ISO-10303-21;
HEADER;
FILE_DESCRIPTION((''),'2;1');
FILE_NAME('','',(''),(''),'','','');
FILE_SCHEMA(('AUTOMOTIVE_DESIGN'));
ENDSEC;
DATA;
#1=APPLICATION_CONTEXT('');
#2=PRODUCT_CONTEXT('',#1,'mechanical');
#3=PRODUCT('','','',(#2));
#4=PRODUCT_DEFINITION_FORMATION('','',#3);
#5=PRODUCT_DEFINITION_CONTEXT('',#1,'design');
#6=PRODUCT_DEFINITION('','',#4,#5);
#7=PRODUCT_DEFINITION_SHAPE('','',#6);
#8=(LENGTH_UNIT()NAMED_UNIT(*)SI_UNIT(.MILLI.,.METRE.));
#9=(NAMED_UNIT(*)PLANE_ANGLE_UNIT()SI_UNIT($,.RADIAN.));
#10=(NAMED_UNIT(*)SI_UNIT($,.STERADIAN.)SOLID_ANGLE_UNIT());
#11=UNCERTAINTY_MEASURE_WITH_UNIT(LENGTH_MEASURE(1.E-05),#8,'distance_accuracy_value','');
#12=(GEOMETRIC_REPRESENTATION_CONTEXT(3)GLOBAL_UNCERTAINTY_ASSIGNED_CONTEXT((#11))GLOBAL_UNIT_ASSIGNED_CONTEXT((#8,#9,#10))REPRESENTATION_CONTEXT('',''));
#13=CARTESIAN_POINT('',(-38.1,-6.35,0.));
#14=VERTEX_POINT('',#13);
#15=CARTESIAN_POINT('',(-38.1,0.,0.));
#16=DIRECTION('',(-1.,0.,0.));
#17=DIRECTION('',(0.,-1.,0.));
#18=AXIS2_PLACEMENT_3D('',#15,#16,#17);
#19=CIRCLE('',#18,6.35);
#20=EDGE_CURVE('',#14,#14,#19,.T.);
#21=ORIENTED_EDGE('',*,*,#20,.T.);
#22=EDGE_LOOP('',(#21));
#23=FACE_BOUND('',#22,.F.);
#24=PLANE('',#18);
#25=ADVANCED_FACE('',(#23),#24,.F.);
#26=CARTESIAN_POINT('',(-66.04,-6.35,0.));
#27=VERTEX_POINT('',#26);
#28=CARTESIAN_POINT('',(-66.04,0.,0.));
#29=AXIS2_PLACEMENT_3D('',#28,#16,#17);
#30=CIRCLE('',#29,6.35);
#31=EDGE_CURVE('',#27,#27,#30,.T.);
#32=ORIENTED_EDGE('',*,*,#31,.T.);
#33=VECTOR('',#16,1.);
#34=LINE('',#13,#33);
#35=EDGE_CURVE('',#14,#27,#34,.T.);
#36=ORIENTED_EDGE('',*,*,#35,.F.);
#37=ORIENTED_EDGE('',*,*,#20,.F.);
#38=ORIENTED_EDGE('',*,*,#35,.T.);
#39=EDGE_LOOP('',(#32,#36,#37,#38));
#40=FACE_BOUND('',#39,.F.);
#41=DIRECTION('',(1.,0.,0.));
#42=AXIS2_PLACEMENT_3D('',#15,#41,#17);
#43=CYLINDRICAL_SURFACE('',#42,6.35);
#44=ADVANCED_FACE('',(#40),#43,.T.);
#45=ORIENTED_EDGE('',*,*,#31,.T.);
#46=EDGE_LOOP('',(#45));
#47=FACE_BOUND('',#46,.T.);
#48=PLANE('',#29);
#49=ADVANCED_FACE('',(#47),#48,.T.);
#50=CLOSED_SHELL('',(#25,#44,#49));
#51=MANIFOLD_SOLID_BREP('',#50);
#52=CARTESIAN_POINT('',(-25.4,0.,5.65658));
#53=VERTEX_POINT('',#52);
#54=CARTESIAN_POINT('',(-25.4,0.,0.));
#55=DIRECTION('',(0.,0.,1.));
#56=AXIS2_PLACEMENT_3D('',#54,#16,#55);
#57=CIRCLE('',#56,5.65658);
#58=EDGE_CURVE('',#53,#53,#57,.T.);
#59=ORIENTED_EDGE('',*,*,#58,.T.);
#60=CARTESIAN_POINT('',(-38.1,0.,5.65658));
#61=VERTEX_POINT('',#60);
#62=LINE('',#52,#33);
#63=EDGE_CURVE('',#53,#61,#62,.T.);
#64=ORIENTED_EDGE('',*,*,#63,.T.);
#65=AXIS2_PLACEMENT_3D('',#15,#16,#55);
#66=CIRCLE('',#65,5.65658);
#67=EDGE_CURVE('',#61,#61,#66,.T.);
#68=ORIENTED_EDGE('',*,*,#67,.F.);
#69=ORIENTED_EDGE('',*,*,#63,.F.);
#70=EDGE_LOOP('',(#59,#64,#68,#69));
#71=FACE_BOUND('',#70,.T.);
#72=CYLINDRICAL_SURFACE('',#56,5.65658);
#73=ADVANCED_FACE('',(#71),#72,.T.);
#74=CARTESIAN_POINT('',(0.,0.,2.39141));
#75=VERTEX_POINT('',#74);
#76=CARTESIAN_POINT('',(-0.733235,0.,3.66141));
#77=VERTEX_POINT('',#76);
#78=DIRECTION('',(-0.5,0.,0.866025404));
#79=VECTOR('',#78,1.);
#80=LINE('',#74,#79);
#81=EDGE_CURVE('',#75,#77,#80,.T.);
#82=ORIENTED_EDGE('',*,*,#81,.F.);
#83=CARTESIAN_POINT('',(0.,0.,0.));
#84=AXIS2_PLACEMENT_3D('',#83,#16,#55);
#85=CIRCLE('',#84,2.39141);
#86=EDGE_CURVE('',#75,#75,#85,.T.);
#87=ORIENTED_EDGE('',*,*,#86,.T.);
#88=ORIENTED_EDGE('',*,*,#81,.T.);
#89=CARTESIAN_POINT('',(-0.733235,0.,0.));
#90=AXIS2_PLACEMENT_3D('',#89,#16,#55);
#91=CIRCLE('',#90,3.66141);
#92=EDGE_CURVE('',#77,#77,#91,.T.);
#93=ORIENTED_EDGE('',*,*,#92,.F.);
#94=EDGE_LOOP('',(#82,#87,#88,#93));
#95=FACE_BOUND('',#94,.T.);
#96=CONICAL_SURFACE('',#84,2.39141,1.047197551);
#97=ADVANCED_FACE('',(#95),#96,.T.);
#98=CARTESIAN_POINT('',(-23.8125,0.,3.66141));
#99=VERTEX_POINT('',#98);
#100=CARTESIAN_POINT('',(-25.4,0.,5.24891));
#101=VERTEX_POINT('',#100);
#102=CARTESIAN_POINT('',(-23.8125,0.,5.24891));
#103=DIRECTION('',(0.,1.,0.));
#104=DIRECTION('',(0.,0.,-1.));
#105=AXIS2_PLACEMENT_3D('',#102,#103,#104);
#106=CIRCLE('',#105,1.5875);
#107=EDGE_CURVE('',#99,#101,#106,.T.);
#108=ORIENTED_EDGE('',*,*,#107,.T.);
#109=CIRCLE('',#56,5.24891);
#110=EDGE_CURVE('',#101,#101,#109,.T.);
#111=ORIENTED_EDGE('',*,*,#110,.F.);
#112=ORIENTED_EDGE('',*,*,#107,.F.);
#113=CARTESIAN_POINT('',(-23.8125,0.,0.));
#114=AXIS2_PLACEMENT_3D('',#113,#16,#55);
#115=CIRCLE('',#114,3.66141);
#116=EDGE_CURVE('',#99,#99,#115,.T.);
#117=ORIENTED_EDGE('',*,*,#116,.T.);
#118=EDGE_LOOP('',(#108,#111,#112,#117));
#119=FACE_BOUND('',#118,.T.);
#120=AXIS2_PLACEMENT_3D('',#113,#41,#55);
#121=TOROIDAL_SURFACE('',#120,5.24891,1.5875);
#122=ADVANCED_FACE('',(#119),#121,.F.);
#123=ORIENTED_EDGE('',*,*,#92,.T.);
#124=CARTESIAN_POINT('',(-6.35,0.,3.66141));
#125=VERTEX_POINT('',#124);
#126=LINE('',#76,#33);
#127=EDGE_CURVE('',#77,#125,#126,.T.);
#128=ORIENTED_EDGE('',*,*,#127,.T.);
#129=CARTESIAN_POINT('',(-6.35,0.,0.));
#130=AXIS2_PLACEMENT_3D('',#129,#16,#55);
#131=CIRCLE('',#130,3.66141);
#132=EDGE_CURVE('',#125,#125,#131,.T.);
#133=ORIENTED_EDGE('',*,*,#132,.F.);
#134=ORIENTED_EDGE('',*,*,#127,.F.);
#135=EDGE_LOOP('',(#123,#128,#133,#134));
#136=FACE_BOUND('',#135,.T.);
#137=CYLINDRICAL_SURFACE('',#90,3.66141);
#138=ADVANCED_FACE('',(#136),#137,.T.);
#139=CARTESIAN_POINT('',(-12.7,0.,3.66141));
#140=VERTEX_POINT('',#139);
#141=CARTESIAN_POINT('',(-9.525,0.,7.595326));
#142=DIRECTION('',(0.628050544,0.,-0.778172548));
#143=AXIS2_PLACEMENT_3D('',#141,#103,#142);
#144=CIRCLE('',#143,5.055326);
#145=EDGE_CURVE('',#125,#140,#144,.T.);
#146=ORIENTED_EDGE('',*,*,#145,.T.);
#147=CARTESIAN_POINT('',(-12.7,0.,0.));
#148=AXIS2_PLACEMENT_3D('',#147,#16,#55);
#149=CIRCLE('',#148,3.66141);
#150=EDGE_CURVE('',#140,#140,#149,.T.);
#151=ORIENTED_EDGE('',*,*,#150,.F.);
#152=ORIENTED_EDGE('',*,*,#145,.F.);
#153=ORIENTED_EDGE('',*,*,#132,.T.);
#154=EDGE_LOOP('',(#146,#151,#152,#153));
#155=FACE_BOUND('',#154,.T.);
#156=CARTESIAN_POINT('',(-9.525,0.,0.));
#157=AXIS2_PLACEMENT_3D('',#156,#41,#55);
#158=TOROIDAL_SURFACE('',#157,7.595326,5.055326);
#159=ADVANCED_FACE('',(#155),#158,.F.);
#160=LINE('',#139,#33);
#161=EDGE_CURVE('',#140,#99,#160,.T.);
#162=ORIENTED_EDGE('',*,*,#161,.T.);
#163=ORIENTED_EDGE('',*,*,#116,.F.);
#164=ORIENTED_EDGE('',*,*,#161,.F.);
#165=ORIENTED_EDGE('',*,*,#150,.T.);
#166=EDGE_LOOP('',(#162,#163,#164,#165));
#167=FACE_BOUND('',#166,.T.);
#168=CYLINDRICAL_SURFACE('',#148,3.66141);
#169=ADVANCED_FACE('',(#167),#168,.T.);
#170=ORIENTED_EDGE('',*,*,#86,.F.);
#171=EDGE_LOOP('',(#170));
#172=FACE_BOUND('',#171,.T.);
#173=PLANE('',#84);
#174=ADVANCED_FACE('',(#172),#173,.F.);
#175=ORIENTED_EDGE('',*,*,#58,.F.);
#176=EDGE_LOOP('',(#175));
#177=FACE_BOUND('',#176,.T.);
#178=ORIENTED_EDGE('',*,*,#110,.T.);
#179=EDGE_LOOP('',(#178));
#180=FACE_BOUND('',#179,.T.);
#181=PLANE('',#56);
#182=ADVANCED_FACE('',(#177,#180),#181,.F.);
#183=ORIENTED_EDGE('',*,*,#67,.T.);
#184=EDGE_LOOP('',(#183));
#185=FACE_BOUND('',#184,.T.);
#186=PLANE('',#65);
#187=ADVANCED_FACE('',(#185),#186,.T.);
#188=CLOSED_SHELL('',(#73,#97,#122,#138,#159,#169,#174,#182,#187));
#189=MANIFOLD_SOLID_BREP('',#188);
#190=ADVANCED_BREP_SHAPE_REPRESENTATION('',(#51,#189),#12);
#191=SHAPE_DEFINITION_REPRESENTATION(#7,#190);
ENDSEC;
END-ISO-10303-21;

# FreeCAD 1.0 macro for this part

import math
import FreeCAD as App
import Part
import Sketcher
from FreeCAD import Vector
Q = App.Units.Quantity

doc = App.newDocument("Part")
body = doc.addObject("PartDesign::Body", "Body")

sketch1 = doc.addObject("Sketcher::SketchObject", "Sketch")
body.addObject(sketch1)
sketch1.AttachmentSupport = (doc.XZ_Plane, [""])
sketch1.MapMode = "FlatFace"
sketch1.addGeometry([
    Part.LineSegment(Vector(0, 2.39, 0), Vector(-0.73, 3.66, 0)),
    Part.LineSegment(Vector(-0.73, 3.66, 0), Vector(-6.35, 3.66, 0)),
    Part.ArcOfCircle(Part.Circle(Vector(-9.53, 7.6, 0), Vector(0, 0, 1), 5.06), math.radians(-129), math.radians(-51)),
    Part.LineSegment(Vector(-12.7, 3.66, 0), Vector(-23.81, 3.66, 0)),
    Part.ArcOfCircle(Part.Circle(Vector(-23.81, 5.25, 0), Vector(0, 0, 1), 1.59), math.radians(180), math.radians(270)),
    Part.LineSegment(Vector(-25.4, 5.25, 0), Vector(-25.4, 5.66, 0)),
    Part.LineSegment(Vector(-25.4, 5.66, 0), Vector(-38.1, 5.66, 0)),
    Part.LineSegment(Vector(-38.1, 5.66, 0), Vector(-38.1, 0, 0)),
    Part.LineSegment(Vector(-38.1, 0, 0), Vector(0, 0, 0)),
    Part.LineSegment(Vector(0, 0, 0), Vector(0, 2.39, 0)),
], False)
sketch1.addConstraint([
    Sketcher.Constraint("Coincident", 0, 2, 1, 1),
    Sketcher.Constraint("Coincident", 1, 2, 2, 2),
    Sketcher.Constraint("Coincident", 2, 1, 3, 1),
    Sketcher.Constraint("Tangent", 3, 2, 4, 2),
    Sketcher.Constraint("Tangent", 4, 1, 5, 1),
    Sketcher.Constraint("Coincident", 5, 2, 6, 1),
    Sketcher.Constraint("Coincident", 6, 2, 7, 1),
    Sketcher.Constraint("Coincident", 7, 2, 8, 1),
    Sketcher.Constraint("Coincident", 8, 2, 9, 1),
    Sketcher.Constraint("Coincident", 9, 2, 0, 1),
    Sketcher.Constraint("Horizontal", 1),
    Sketcher.Constraint("Horizontal", 3),
    Sketcher.Constraint("Vertical", 5),
    Sketcher.Constraint("Horizontal", 6),
    Sketcher.Constraint("Vertical", 7),
    Sketcher.Constraint("Horizontal", 8),
    Sketcher.Constraint("Vertical", 9),
    Sketcher.Constraint("Coincident", 8, 2, -1, 1),
    Sketcher.Constraint("Horizontal", 1, 2, 2, 1),
    Sketcher.Constraint("DistanceX", 6, 2, 6, 1, Q("0.5 in")),
    Sketcher.Constraint("DistanceX", 8, 1, 8, 2, Q("1.5 in")),
    Sketcher.Constraint("Angle", 0, Q("120 deg")),
    Sketcher.Constraint("Radius", 4, Q("0.0625 in")),
    Sketcher.Constraint("DistanceX", 6, 2, 2, 1, Q("1 in")),
    Sketcher.Constraint("DistanceX", 1, 2, -1, 1, Q("0.25 in")),
    Sketcher.Constraint("DistanceY", 9, 2, 0, 2, Q("0.05 in")),
    Sketcher.Constraint("DistanceY", 7, 2, 7, 1, Q("0.2227 in")),
    Sketcher.Constraint("Radius", 2, Q("5.055326 mm")),
    Sketcher.Constraint("DistanceY", 5, 1, 5, 2, Q("0.40767 mm")),
])
revolution = doc.addObject("PartDesign::Revolution", "Revolution")
body.addObject(revolution)
revolution.Profile = sketch1
revolution.ReferenceAxis = (sketch1, ["H_Axis"])
revolution.Angle = 360
body2 = doc.addObject("PartDesign::Body", "Body001")

sketch2 = doc.addObject("Sketcher::SketchObject", "Sketch001")
body2.addObject(sketch2)
sketch2.AttachmentSupport = (doc.getObject("YZ_Plane001"), [""])
sketch2.MapMode = "FlatFace"
sketch2.AttachmentOffset = App.Placement(Vector(0, 0, -1.5 * 25.4), App.Rotation())
sketch2.addGeometry(Part.Circle(Vector(0, 0, 0), Vector(0, 0, 1), 6), False)
sketch2.addConstraint([
    Sketcher.Constraint("Coincident", 0, 3, -1, 1),
    Sketcher.Constraint("Diameter", 0, Q("0.5 in")),
])
pad1 = doc.addObject("PartDesign::Pad", "Pad")
body2.addObject(pad1)
pad1.Profile = sketch2
pad1.Length = Q("1.1 in")
pad1.Reversed = True

doc.recompute()
